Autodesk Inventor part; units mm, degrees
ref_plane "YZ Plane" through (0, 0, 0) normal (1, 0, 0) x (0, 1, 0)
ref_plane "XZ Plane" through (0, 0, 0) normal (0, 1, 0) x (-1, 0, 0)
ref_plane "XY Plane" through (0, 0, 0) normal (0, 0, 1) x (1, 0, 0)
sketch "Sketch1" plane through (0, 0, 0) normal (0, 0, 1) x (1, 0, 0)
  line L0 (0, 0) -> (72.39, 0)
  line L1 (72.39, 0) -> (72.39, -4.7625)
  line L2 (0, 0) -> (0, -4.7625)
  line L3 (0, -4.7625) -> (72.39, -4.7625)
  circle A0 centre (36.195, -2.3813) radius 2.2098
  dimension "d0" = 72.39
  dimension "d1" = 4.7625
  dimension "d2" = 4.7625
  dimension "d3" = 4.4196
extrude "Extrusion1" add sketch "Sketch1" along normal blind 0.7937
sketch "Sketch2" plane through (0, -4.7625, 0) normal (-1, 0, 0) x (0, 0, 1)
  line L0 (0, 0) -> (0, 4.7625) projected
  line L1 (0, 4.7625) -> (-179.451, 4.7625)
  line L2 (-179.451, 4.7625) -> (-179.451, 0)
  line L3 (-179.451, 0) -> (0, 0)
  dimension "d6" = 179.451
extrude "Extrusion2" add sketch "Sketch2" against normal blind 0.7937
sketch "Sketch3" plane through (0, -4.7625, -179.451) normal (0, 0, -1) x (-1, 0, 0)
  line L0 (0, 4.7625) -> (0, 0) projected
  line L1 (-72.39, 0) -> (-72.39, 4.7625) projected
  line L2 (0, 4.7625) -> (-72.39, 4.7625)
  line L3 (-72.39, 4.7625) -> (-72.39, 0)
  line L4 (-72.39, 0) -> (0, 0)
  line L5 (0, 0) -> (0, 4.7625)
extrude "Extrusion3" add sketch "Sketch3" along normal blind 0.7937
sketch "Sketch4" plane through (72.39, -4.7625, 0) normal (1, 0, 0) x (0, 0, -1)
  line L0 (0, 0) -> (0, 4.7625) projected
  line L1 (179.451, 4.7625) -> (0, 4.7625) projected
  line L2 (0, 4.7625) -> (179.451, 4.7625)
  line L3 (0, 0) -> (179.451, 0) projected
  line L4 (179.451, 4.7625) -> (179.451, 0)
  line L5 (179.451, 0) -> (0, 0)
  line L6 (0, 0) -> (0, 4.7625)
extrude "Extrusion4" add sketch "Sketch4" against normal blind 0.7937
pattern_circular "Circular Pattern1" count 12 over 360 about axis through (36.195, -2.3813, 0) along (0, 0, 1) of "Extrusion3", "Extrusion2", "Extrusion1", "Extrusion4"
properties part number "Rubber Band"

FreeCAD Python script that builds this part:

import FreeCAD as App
import Part
import Sketcher
Q = App.Units.Quantity


def add_polygon(sketch, points):
    """Adds a closed chain of lines whose ends are joined by coincident constraints."""
    first, n = sketch.GeometryCount, len(points)
    for a, b in zip(points, points[1:] + points[:1]):
        sketch.addGeometry(Part.LineSegment(App.Vector(*a, 0), App.Vector(*b, 0)), False)
    for i in range(n):
        sketch.addConstraint(Sketcher.Constraint("Coincident", first + i, 2, first + (i + 1) % n, 1))

doc = App.newDocument("Part")
body = doc.addObject("PartDesign::Body", "Body")

# Sketch on XY plane
sketch1 = body.newObject("Sketcher::SketchObject", "Sketch")
sketch1.AttachmentSupport = (doc.getObject("XY_Plane"), [""])
sketch1.MapMode = "FlatFace"
add_polygon(sketch1, [(72.4, 0), (0, 0), (0, -4.8), (72.4, -4.8)])  # lines 0-3
sketch1.addGeometry(Part.Circle(App.Vector(36.2, -2.4, 0), App.Vector(0, 0, 1), 2.2), False)  # 4
sketch1.addConstraint([
    Sketcher.Constraint("Horizontal", 0),
    Sketcher.Constraint("Vertical", 1),
    Sketcher.Constraint("Horizontal", 2),
    Sketcher.Constraint("Vertical", 3),
    Sketcher.Constraint("Coincident", 0, 2, -1, 1),
    Sketcher.Constraint("Diameter", 4, Q("0.174 in")),
    Sketcher.Constraint("DistanceX", 0, 2, 0, 1, Q("2.85 in")),
    Sketcher.Constraint("DistanceY", 1, 2, 1, 1, Q("0.1875 in")),
    Sketcher.Constraint("DistanceX", -1, 1, 4, 3, Q("1.425 in")),
    Sketcher.Constraint("DistanceY", 4, 3, -1, 1, Q("0.093752 in")),
])
pad1 = body.newObject("PartDesign::Pad", "Pad")
pad1.Profile = sketch1
pad1.Length = Q("0.031248 in")

# Sketch on YZ plane
sketch2 = body.newObject("Sketcher::SketchObject", "Sketch001")
sketch2.AttachmentSupport = (doc.getObject("YZ_Plane"), [""])
sketch2.MapMode = "FlatFace"
add_polygon(sketch2, [(-4.8, -179.5), (-4.8, 0), (0, 0), (0, -179.5)])  # lines 0-3
sketch2.addConstraint([
    Sketcher.Constraint("Vertical", 0),
    Sketcher.Constraint("Horizontal", 1),
    Sketcher.Constraint("Vertical", 2),
    Sketcher.Constraint("Horizontal", 3),
    Sketcher.Constraint("Coincident", 1, 2, -1, 1),
    Sketcher.Constraint("DistanceY", 0, 1, 0, 2, Q("7.065 in")),
    Sketcher.Constraint("DistanceX", 1, 1, 1, 2, Q("0.1875 in")),
])
pad2 = body.newObject("PartDesign::Pad", "Pad001")
pad2.Profile = sketch2
pad2.Length = Q("0.031248 in")

# Sketch on XY plane
sketch3 = body.newObject("Sketcher::SketchObject", "Sketch002")
sketch3.AttachmentSupport = (doc.getObject("XY_Plane"), [""])
sketch3.MapMode = "FlatFace"
sketch3.AttachmentOffset = App.Placement(App.Vector(0, 0, -7.065 * 25.4), App.Rotation())
add_polygon(sketch3, [(0, -4.8), (0, 0), (72.4, 0), (72.4, -4.8)])  # lines 0-3
sketch3.addConstraint([
    Sketcher.Constraint("Vertical", 0),
    Sketcher.Constraint("Horizontal", 1),
    Sketcher.Constraint("Vertical", 2),
    Sketcher.Constraint("Horizontal", 3),
    Sketcher.Constraint("Coincident", 0, 2, -1, 1),
    Sketcher.Constraint("DistanceX", 1, 1, 1, 2, Q("2.85 in")),
    Sketcher.Constraint("DistanceY", 0, 1, 0, 2, Q("0.1875 in")),
])
pad3 = body.newObject("PartDesign::Pad", "Pad002")
pad3.Profile = sketch3
pad3.Length = Q("0.031248 in")
pad3.Reversed = True

# Sketch on YZ plane
sketch4 = body.newObject("Sketcher::SketchObject", "Sketch003")
sketch4.AttachmentSupport = (doc.getObject("YZ_Plane"), [""])
sketch4.MapMode = "FlatFace"
sketch4.AttachmentOffset = App.Placement(App.Vector(0, 0, 2.85 * 25.4), App.Rotation())
add_polygon(sketch4, [(0, 0), (-4.8, 0), (-4.8, -179.5), (0, -179.5)])  # lines 0-3
sketch4.addConstraint([
    Sketcher.Constraint("Horizontal", 0),
    Sketcher.Constraint("Vertical", 1),
    Sketcher.Constraint("Horizontal", 2),
    Sketcher.Constraint("Vertical", 3),
    Sketcher.Constraint("Coincident", 3, 2, -1, 1),
    Sketcher.Constraint("DistanceX", 0, 2, 0, 1, Q("0.1875 in")),
    Sketcher.Constraint("DistanceY", 1, 2, 1, 1, Q("7.065 in")),
])
pad4 = body.newObject("PartDesign::Pad", "Pad003")
pad4.Profile = sketch4
pad4.Length = Q("0.031248 in")
pad4.Reversed = True
doc.recompute()

datumline = body.newObject("PartDesign::Line", "DatumLine")
datumline.Placement = App.Placement(App.Vector(36.195, -2.3813, 0), App.Rotation(App.Vector(0, 0, 1), App.Vector(0, 0, 1)))
polarpattern = body.newObject("PartDesign::PolarPattern", "PolarPattern")
polarpattern.Originals = [pad3, pad2, pad1, pad4]
polarpattern.Axis = (datumline, [""])
polarpattern.Angle = 360
polarpattern.Occurrences = 12
body.Tip = polarpattern

doc.recompute()
